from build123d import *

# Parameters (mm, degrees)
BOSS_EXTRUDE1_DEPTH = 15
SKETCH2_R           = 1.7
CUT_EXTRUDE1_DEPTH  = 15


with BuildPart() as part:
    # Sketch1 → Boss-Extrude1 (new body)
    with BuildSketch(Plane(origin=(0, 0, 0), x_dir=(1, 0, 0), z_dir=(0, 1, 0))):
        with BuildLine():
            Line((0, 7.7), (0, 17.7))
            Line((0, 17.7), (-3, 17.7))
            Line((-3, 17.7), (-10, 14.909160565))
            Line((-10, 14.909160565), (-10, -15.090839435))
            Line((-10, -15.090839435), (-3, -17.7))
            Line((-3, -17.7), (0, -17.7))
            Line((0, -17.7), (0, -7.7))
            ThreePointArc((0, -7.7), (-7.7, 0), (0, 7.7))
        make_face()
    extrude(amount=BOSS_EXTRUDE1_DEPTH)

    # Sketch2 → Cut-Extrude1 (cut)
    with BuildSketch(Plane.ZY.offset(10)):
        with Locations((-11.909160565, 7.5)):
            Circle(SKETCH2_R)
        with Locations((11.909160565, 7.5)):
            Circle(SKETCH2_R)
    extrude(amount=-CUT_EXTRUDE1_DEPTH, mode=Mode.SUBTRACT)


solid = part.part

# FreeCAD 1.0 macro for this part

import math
import FreeCAD as App
import Part
import Sketcher
Q = App.Units.Quantity

doc = App.newDocument("Part")
body = doc.addObject("PartDesign::Body", "Body")

sketch1 = body.newObject("Sketcher::SketchObject", "Sketch")
sketch1.AttachmentSupport = (doc.getObject("XZ_Plane"), [""])
sketch1.MapMode = "FlatFace"
sketch1.addGeometry(Part.LineSegment(App.Vector(0, -7.7, 0), App.Vector(0, -17.7, 0)), False)
sketch1.addGeometry(Part.LineSegment(App.Vector(0, -17.7, 0), App.Vector(-3, -17.7, 0)), False)
sketch1.addGeometry(Part.LineSegment(App.Vector(-3, -17.7, 0), App.Vector(-10, -14.9, 0)), False)
sketch1.addGeometry(Part.LineSegment(App.Vector(-10, -14.9, 0), App.Vector(-10, 15.1, 0)), False)
sketch1.addGeometry(Part.LineSegment(App.Vector(-10, 15.1, 0), App.Vector(-3, 17.7, 0)), False)
sketch1.addGeometry(Part.LineSegment(App.Vector(-3, 17.7, 0), App.Vector(0, 17.7, 0)), False)
sketch1.addGeometry(Part.LineSegment(App.Vector(0, 17.7, 0), App.Vector(0, 7.7, 0)), False)
sketch1.addGeometry(Part.ArcOfCircle(Part.Circle(App.Vector(0, 0, 0), App.Vector(0, 0, 1), 7.7), math.radians(90), math.radians(270)), False)
sketch1.addConstraint(Sketcher.Constraint("Coincident", 0, 2, 1, 1))
sketch1.addConstraint(Sketcher.Constraint("Coincident", 1, 2, 2, 1))
sketch1.addConstraint(Sketcher.Constraint("Coincident", 2, 2, 3, 1))
sketch1.addConstraint(Sketcher.Constraint("Coincident", 3, 2, 4, 1))
sketch1.addConstraint(Sketcher.Constraint("Coincident", 4, 2, 5, 1))
sketch1.addConstraint(Sketcher.Constraint("Coincident", 5, 2, 6, 1))
sketch1.addConstraint(Sketcher.Constraint("Coincident", 6, 2, 7, 1))
sketch1.addConstraint(Sketcher.Constraint("Coincident", 7, 2, 0, 1))
sketch1.addConstraint(Sketcher.Constraint("Vertical", 0))
sketch1.addConstraint(Sketcher.Constraint("Horizontal", 1))
sketch1.addConstraint(Sketcher.Constraint("Vertical", 3))
sketch1.addConstraint(Sketcher.Constraint("Horizontal", 5))
sketch1.addConstraint(Sketcher.Constraint("Vertical", 6))
sketch1.addConstraint(Sketcher.Constraint("Coincident", 7, 3, -1, 1))
sketch1.addConstraint(Sketcher.Constraint("Symmetric", 0, 2, 5, 2, -1, 1))
sketch1.addConstraint(Sketcher.Constraint("PointOnObject", 0, 2, -2))
sketch1.addConstraint(Sketcher.Constraint("Vertical", 1, 2, 4, 2))
sketch1.addConstraint(Sketcher.Constraint("Radius", 7, Q("7.7 mm")))
sketch1.addConstraint(Sketcher.Constraint("DistanceX", 1, 2, 1, 1, Q("3 mm")))
sketch1.addConstraint(Sketcher.Constraint("DistanceY", 0, 2, 0, 1, Q("10 mm")))
sketch1.addConstraint(Sketcher.Constraint("DistanceY", 3, 1, 3, 2, Q("30 mm")))
sketch1.addConstraint(Sketcher.Constraint("DistanceX", 2, 2, -1, 1, Q("10 mm")))
sketch1.addConstraint(Sketcher.Constraint("DistanceY", 2, 2, -1, 1, Q("14.909161 mm")))
pad1 = body.newObject("PartDesign::Pad", "Pad")
pad1.Profile = sketch1
pad1.Length = 15
pad1.Reversed = True

sketch2 = body.newObject("Sketcher::SketchObject", "Sketch001")
sketch2.AttachmentSupport = (doc.getObject("YZ_Plane"), [""])
sketch2.MapMode = "FlatFace"
sketch2.AttachmentOffset = App.Placement(App.Vector(0, 0, -10), App.Rotation())
sketch2.addGeometry(Part.Circle(App.Vector(7.5, -11.9, 0), App.Vector(0, 0, 1), 1.7), False)
sketch2.addGeometry(Part.Circle(App.Vector(7.5, 11.9, 0), App.Vector(0, 0, 1), 1.7), False)
sketch2.addConstraint(Sketcher.Constraint("Equal", 0, 1))
sketch2.addConstraint(Sketcher.Constraint("Symmetric", 0, 3, 1, 3, -1))
sketch2.addConstraint(Sketcher.Constraint("Diameter", 0, Q("3.4 mm")))
sketch2.addConstraint(Sketcher.Constraint("DistanceX", -1, 1, 0, 3, Q("7.5 mm")))
sketch2.addConstraint(Sketcher.Constraint("DistanceY", 0, 3, -1, 1, Q("11.909161 mm")))
pocket1 = body.newObject("PartDesign::Pocket", "Pocket")
pocket1.Profile = sketch2
pocket1.Length = 15
pocket1.Reversed = True

doc.recompute()
